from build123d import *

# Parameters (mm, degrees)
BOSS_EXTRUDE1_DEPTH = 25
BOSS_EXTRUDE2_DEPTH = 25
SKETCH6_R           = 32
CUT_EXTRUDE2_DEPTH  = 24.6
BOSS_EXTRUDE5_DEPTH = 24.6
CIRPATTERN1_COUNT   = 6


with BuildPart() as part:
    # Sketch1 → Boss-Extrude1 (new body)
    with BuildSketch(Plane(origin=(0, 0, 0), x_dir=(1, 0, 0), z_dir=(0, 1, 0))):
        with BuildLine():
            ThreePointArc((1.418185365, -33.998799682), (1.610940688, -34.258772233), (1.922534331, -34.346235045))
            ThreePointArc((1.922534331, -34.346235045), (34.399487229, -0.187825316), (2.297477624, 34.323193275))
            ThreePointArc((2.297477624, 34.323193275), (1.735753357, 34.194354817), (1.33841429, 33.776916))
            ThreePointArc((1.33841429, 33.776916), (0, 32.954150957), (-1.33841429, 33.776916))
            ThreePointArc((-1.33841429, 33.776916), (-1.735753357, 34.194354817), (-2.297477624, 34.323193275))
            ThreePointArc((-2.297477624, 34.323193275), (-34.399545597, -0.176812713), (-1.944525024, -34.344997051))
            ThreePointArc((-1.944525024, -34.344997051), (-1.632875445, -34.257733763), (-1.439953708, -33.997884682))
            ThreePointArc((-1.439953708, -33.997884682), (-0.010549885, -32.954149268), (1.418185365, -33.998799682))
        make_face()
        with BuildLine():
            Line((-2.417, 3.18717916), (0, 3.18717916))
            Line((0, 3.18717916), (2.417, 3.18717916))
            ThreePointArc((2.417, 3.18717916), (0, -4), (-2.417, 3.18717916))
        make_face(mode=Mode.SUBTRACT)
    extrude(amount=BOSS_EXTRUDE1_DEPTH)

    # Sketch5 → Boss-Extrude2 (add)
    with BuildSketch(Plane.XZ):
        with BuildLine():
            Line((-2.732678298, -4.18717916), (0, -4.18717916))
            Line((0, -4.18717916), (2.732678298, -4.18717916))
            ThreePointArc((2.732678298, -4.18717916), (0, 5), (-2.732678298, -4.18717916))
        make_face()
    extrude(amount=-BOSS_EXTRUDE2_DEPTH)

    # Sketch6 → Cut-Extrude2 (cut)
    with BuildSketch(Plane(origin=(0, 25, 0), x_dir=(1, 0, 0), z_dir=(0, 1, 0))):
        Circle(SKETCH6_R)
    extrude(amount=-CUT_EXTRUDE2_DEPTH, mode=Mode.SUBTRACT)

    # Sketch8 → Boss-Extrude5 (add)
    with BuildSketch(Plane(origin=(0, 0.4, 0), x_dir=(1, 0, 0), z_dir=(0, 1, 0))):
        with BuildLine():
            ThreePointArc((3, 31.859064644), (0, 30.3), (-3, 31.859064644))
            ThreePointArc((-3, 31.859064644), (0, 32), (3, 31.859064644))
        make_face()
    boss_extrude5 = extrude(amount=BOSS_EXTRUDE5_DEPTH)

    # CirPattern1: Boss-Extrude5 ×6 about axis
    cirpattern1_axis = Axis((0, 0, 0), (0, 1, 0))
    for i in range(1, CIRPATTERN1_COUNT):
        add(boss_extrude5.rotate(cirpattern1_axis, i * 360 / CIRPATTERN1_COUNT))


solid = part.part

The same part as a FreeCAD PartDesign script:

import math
import FreeCAD as App
import Part
import Sketcher

V = App.Vector

doc = App.newDocument("Part")
params = doc.addObject("Spreadsheet::Sheet", "Params")
for row, (alias, value) in enumerate([
    ("sketch1_radius", "1 mm"),
    ("sketch1_radius2", "4 mm"),
    ("sketch1_radius3", "0.5 mm"),
    ("sketch1_radius4", "34.4 mm"),
    ("sketch1_radius5", "1.5 mm"),
    ("pad1_length", "25 mm"),
    ("sketch2_radius", "5 mm"),
    ("pad2_length", "25 mm"),
    ("sketch3_diameter", "64 mm"),
    ("pocket1_length", "24.6 mm"),
    ("sketch4_radius", "32 mm"),
    ("pad3_length", "24.6 mm"),
], start=1):
    params.set(f"A{row}", alias)
    params.set(f"B{row}", "=" + value)
    params.setAlias(f"B{row}", alias)

body = doc.addObject("PartDesign::Body", "Body")

sketch1 = body.newObject("Sketcher::SketchObject", "Sketch")
sketch1.AttachmentSupport = (doc.getObject("XZ_Plane"), [""])
sketch1.MapMode = "FlatFace"
sketch1.addGeometry([
    Part.ArcOfCircle(Part.Circle(V(1.894591, 33.847017, 0), V(0, 0, 1), 0.5), math.radians(86.796206), math.radians(162.328068)),
    Part.ArcOfCircle(Part.Circle(V(0, 0, 0), V(0, 0, 1), 34.4), math.radians(-86.170528), math.radians(86.796206)),
    Part.ArcOfCircle(Part.Circle(V(2.23069, -33.325426, 0), V(0, 0, 1), 1), math.radians(-153.160681), math.radians(-86.170528)),
    Part.ArcOfCircle(Part.Circle(V(0, -34.454151, 0), V(0, 0, 1), 1.5), math.radians(26.839319), math.radians(153.160681)),
    Part.ArcOfCircle(Part.Circle(V(-2.23069, -33.325426, 0), V(0, 0, 1), 1), math.radians(-93.829472), math.radians(-26.839319)),
    Part.ArcOfCircle(Part.Circle(V(0, 0, 0), V(0, 0, 1), 34.4), math.radians(93.24048), math.radians(266.170528)),
    Part.ArcOfCircle(Part.Circle(V(-1.916262, 33.845797, 0), V(0, 0, 1), 0.5), math.radians(17.708617), math.radians(93.240479)),
    Part.ArcOfCircle(Part.Circle(V(-0.01103, 34.454149, 0), V(0, 0, 1), 1.5), math.radians(-162.291383), math.radians(-17.671932)),
    Part.ArcOfCircle(Part.Circle(V(0, 0, 0), V(0, 0, 1), 4), math.radians(-52.825108), math.radians(232.825108)),
    Part.LineSegment(V(-2.417, -3.187179, 0), V(2.417, -3.187179, 0)),
], False)
sketch1.addConstraint([
    Sketcher.Constraint("Tangent", 0, 1, 1, 2),
    Sketcher.Constraint("Tangent", 1, 1, 2, 2),
    Sketcher.Constraint("Tangent", 2, 1, 3, 1),
    Sketcher.Constraint("Tangent", 3, 2, 4, 2),
    Sketcher.Constraint("Tangent", 4, 1, 5, 2),
    Sketcher.Constraint("Tangent", 5, 1, 6, 2),
    Sketcher.Constraint("Tangent", 6, 1, 7, 1),
    Sketcher.Constraint("Tangent", 7, 2, 0, 2),
    Sketcher.Constraint("Coincident", 8, 1, 9, 2),
    Sketcher.Constraint("Coincident", 9, 1, 8, 2),
    Sketcher.Constraint("Horizontal", 9),
    Sketcher.Constraint("Coincident", 1, 3, -1, 1),
    Sketcher.Constraint("Coincident", 5, 3, -1, 1),
    Sketcher.Constraint("Coincident", 8, 3, -1, 1),
    Sketcher.Constraint("Equal", 2, 4),
    Sketcher.Constraint("Equal", 1, 5),
    Sketcher.Constraint("Equal", 0, 6),
    Sketcher.Constraint("Equal", 3, 7),
    Sketcher.Constraint("PointOnObject", 3, 3, -2),
    Sketcher.Constraint("Radius", 2, 1.0),
    Sketcher.Constraint("Radius", 8, 4.0),
    Sketcher.Constraint("Radius", 0, 0.5),
    Sketcher.Constraint("Radius", 1, 34.4),
    Sketcher.Constraint("Radius", 3, 1.5),
    Sketcher.Constraint("DistanceX", 9, 1, 9, 2, 4.834),
    Sketcher.Constraint("DistanceY", -1, 1, 7, 2, 33.9988),
    Sketcher.Constraint("DistanceX", 0, 3, 2, 3, 0.3361),
    Sketcher.Constraint("DistanceX", -1, 1, 0, 3, 1.894591),
])
sketch1.setExpression("Constraints[19]", "Params.sketch1_radius")
sketch1.setExpression("Constraints[20]", "Params.sketch1_radius2")
sketch1.setExpression("Constraints[21]", "Params.sketch1_radius3")
sketch1.setExpression("Constraints[22]", "Params.sketch1_radius4")
sketch1.setExpression("Constraints[23]", "Params.sketch1_radius5")
pad1 = body.newObject("PartDesign::Pad", "Pad")
pad1.Profile = sketch1
pad1.setExpression("Length", "Params.pad1_length")
pad1.Reversed = True

sketch2 = body.newObject("Sketcher::SketchObject", "Sketch001")
sketch2.AttachmentSupport = (doc.getObject("XZ_Plane"), [""])
sketch2.MapMode = "FlatFace"
sketch2.addGeometry([
    Part.LineSegment(V(-2.732678, -4.187179, 0), V(2.732678, -4.187179, 0)),
    Part.ArcOfCircle(Part.Circle(V(0, 0, 0), V(0, 0, 1), 5), math.radians(-56.870332), math.radians(236.870332)),
], False)
sketch2.addConstraint([
    Sketcher.Constraint("Coincident", 0, 1, 1, 2),
    Sketcher.Constraint("Coincident", 1, 1, 0, 2),
    Sketcher.Constraint("Horizontal", 0),
    Sketcher.Constraint("Coincident", 1, 3, -1, 1),
    Sketcher.Constraint("Radius", 1, 5.0),
    Sketcher.Constraint("DistanceX", 0, 1, 0, 2, 5.465357),
])
sketch2.setExpression("Constraints[4]", "Params.sketch2_radius")
pad2 = body.newObject("PartDesign::Pad", "Pad001")
pad2.Profile = sketch2
pad2.setExpression("Length", "Params.pad2_length")
pad2.Reversed = True

sketch3 = body.newObject("Sketcher::SketchObject", "Sketch002")
sketch3.AttachmentSupport = (doc.getObject("XZ_Plane"), [""])
sketch3.MapMode = "FlatFace"
sketch3.AttachmentOffset = App.Placement(V(0, 0, -25), App.Rotation())
sketch3.addGeometry(Part.Circle(V(0, 0, 0), V(0, 0, 1), 32), False)
sketch3.addConstraint([
    Sketcher.Constraint("Coincident", 0, 3, -1, 1),
    Sketcher.Constraint("Diameter", 0, 64.0),
])
sketch3.setExpression("Constraints[1]", "Params.sketch3_diameter")
pocket1 = body.newObject("PartDesign::Pocket", "Pocket")
pocket1.Profile = sketch3
pocket1.setExpression("Length", "Params.pocket1_length")
pocket1.Reversed = True

sketch4 = body.newObject("Sketcher::SketchObject", "Sketch003")
sketch4.AttachmentSupport = (doc.getObject("XZ_Plane"), [""])
sketch4.MapMode = "FlatFace"
sketch4.AttachmentOffset = App.Placement(V(0, 0, -0.4), App.Rotation())
sketch4.addGeometry([
    Part.ArcOfCircle(Part.Circle(V(0, -33.965878, 0), V(0, 0, 1), 3.665878), math.radians(35.079264), math.radians(144.920736)),
    Part.ArcOfCircle(Part.Circle(V(0, 0, 0), V(0, 0, 1), 32), math.radians(-95.379379), math.radians(-84.620621)),
], False)
sketch4.addConstraint([
    Sketcher.Constraint("Coincident", 0, 1, 1, 2),
    Sketcher.Constraint("Coincident", 1, 1, 0, 2),
    Sketcher.Constraint("Coincident", 1, 3, -1, 1),
    Sketcher.Constraint("PointOnObject", 0, 3, -2),
    Sketcher.Constraint("Radius", 1, 32.0),
    Sketcher.Constraint("DistanceX", -1, 1, 0, 1, 3.0),
    Sketcher.Constraint("Radius", 0, 3.665878),
])
sketch4.setExpression("Constraints[4]", "Params.sketch4_radius")
pad3 = body.newObject("PartDesign::Pad", "Pad002")
pad3.Profile = sketch4
pad3.setExpression("Length", "Params.pad3_length")
pad3.Reversed = True
doc.recompute()

polarpattern = body.newObject("PartDesign::PolarPattern", "PolarPattern")
polarpattern.Originals = [pad3]
polarpattern.Axis = (doc.getObject("Y_Axis"), [""])
polarpattern.Angle = 360
polarpattern.Occurrences = 6
body.Tip = polarpattern

doc.recompute()
